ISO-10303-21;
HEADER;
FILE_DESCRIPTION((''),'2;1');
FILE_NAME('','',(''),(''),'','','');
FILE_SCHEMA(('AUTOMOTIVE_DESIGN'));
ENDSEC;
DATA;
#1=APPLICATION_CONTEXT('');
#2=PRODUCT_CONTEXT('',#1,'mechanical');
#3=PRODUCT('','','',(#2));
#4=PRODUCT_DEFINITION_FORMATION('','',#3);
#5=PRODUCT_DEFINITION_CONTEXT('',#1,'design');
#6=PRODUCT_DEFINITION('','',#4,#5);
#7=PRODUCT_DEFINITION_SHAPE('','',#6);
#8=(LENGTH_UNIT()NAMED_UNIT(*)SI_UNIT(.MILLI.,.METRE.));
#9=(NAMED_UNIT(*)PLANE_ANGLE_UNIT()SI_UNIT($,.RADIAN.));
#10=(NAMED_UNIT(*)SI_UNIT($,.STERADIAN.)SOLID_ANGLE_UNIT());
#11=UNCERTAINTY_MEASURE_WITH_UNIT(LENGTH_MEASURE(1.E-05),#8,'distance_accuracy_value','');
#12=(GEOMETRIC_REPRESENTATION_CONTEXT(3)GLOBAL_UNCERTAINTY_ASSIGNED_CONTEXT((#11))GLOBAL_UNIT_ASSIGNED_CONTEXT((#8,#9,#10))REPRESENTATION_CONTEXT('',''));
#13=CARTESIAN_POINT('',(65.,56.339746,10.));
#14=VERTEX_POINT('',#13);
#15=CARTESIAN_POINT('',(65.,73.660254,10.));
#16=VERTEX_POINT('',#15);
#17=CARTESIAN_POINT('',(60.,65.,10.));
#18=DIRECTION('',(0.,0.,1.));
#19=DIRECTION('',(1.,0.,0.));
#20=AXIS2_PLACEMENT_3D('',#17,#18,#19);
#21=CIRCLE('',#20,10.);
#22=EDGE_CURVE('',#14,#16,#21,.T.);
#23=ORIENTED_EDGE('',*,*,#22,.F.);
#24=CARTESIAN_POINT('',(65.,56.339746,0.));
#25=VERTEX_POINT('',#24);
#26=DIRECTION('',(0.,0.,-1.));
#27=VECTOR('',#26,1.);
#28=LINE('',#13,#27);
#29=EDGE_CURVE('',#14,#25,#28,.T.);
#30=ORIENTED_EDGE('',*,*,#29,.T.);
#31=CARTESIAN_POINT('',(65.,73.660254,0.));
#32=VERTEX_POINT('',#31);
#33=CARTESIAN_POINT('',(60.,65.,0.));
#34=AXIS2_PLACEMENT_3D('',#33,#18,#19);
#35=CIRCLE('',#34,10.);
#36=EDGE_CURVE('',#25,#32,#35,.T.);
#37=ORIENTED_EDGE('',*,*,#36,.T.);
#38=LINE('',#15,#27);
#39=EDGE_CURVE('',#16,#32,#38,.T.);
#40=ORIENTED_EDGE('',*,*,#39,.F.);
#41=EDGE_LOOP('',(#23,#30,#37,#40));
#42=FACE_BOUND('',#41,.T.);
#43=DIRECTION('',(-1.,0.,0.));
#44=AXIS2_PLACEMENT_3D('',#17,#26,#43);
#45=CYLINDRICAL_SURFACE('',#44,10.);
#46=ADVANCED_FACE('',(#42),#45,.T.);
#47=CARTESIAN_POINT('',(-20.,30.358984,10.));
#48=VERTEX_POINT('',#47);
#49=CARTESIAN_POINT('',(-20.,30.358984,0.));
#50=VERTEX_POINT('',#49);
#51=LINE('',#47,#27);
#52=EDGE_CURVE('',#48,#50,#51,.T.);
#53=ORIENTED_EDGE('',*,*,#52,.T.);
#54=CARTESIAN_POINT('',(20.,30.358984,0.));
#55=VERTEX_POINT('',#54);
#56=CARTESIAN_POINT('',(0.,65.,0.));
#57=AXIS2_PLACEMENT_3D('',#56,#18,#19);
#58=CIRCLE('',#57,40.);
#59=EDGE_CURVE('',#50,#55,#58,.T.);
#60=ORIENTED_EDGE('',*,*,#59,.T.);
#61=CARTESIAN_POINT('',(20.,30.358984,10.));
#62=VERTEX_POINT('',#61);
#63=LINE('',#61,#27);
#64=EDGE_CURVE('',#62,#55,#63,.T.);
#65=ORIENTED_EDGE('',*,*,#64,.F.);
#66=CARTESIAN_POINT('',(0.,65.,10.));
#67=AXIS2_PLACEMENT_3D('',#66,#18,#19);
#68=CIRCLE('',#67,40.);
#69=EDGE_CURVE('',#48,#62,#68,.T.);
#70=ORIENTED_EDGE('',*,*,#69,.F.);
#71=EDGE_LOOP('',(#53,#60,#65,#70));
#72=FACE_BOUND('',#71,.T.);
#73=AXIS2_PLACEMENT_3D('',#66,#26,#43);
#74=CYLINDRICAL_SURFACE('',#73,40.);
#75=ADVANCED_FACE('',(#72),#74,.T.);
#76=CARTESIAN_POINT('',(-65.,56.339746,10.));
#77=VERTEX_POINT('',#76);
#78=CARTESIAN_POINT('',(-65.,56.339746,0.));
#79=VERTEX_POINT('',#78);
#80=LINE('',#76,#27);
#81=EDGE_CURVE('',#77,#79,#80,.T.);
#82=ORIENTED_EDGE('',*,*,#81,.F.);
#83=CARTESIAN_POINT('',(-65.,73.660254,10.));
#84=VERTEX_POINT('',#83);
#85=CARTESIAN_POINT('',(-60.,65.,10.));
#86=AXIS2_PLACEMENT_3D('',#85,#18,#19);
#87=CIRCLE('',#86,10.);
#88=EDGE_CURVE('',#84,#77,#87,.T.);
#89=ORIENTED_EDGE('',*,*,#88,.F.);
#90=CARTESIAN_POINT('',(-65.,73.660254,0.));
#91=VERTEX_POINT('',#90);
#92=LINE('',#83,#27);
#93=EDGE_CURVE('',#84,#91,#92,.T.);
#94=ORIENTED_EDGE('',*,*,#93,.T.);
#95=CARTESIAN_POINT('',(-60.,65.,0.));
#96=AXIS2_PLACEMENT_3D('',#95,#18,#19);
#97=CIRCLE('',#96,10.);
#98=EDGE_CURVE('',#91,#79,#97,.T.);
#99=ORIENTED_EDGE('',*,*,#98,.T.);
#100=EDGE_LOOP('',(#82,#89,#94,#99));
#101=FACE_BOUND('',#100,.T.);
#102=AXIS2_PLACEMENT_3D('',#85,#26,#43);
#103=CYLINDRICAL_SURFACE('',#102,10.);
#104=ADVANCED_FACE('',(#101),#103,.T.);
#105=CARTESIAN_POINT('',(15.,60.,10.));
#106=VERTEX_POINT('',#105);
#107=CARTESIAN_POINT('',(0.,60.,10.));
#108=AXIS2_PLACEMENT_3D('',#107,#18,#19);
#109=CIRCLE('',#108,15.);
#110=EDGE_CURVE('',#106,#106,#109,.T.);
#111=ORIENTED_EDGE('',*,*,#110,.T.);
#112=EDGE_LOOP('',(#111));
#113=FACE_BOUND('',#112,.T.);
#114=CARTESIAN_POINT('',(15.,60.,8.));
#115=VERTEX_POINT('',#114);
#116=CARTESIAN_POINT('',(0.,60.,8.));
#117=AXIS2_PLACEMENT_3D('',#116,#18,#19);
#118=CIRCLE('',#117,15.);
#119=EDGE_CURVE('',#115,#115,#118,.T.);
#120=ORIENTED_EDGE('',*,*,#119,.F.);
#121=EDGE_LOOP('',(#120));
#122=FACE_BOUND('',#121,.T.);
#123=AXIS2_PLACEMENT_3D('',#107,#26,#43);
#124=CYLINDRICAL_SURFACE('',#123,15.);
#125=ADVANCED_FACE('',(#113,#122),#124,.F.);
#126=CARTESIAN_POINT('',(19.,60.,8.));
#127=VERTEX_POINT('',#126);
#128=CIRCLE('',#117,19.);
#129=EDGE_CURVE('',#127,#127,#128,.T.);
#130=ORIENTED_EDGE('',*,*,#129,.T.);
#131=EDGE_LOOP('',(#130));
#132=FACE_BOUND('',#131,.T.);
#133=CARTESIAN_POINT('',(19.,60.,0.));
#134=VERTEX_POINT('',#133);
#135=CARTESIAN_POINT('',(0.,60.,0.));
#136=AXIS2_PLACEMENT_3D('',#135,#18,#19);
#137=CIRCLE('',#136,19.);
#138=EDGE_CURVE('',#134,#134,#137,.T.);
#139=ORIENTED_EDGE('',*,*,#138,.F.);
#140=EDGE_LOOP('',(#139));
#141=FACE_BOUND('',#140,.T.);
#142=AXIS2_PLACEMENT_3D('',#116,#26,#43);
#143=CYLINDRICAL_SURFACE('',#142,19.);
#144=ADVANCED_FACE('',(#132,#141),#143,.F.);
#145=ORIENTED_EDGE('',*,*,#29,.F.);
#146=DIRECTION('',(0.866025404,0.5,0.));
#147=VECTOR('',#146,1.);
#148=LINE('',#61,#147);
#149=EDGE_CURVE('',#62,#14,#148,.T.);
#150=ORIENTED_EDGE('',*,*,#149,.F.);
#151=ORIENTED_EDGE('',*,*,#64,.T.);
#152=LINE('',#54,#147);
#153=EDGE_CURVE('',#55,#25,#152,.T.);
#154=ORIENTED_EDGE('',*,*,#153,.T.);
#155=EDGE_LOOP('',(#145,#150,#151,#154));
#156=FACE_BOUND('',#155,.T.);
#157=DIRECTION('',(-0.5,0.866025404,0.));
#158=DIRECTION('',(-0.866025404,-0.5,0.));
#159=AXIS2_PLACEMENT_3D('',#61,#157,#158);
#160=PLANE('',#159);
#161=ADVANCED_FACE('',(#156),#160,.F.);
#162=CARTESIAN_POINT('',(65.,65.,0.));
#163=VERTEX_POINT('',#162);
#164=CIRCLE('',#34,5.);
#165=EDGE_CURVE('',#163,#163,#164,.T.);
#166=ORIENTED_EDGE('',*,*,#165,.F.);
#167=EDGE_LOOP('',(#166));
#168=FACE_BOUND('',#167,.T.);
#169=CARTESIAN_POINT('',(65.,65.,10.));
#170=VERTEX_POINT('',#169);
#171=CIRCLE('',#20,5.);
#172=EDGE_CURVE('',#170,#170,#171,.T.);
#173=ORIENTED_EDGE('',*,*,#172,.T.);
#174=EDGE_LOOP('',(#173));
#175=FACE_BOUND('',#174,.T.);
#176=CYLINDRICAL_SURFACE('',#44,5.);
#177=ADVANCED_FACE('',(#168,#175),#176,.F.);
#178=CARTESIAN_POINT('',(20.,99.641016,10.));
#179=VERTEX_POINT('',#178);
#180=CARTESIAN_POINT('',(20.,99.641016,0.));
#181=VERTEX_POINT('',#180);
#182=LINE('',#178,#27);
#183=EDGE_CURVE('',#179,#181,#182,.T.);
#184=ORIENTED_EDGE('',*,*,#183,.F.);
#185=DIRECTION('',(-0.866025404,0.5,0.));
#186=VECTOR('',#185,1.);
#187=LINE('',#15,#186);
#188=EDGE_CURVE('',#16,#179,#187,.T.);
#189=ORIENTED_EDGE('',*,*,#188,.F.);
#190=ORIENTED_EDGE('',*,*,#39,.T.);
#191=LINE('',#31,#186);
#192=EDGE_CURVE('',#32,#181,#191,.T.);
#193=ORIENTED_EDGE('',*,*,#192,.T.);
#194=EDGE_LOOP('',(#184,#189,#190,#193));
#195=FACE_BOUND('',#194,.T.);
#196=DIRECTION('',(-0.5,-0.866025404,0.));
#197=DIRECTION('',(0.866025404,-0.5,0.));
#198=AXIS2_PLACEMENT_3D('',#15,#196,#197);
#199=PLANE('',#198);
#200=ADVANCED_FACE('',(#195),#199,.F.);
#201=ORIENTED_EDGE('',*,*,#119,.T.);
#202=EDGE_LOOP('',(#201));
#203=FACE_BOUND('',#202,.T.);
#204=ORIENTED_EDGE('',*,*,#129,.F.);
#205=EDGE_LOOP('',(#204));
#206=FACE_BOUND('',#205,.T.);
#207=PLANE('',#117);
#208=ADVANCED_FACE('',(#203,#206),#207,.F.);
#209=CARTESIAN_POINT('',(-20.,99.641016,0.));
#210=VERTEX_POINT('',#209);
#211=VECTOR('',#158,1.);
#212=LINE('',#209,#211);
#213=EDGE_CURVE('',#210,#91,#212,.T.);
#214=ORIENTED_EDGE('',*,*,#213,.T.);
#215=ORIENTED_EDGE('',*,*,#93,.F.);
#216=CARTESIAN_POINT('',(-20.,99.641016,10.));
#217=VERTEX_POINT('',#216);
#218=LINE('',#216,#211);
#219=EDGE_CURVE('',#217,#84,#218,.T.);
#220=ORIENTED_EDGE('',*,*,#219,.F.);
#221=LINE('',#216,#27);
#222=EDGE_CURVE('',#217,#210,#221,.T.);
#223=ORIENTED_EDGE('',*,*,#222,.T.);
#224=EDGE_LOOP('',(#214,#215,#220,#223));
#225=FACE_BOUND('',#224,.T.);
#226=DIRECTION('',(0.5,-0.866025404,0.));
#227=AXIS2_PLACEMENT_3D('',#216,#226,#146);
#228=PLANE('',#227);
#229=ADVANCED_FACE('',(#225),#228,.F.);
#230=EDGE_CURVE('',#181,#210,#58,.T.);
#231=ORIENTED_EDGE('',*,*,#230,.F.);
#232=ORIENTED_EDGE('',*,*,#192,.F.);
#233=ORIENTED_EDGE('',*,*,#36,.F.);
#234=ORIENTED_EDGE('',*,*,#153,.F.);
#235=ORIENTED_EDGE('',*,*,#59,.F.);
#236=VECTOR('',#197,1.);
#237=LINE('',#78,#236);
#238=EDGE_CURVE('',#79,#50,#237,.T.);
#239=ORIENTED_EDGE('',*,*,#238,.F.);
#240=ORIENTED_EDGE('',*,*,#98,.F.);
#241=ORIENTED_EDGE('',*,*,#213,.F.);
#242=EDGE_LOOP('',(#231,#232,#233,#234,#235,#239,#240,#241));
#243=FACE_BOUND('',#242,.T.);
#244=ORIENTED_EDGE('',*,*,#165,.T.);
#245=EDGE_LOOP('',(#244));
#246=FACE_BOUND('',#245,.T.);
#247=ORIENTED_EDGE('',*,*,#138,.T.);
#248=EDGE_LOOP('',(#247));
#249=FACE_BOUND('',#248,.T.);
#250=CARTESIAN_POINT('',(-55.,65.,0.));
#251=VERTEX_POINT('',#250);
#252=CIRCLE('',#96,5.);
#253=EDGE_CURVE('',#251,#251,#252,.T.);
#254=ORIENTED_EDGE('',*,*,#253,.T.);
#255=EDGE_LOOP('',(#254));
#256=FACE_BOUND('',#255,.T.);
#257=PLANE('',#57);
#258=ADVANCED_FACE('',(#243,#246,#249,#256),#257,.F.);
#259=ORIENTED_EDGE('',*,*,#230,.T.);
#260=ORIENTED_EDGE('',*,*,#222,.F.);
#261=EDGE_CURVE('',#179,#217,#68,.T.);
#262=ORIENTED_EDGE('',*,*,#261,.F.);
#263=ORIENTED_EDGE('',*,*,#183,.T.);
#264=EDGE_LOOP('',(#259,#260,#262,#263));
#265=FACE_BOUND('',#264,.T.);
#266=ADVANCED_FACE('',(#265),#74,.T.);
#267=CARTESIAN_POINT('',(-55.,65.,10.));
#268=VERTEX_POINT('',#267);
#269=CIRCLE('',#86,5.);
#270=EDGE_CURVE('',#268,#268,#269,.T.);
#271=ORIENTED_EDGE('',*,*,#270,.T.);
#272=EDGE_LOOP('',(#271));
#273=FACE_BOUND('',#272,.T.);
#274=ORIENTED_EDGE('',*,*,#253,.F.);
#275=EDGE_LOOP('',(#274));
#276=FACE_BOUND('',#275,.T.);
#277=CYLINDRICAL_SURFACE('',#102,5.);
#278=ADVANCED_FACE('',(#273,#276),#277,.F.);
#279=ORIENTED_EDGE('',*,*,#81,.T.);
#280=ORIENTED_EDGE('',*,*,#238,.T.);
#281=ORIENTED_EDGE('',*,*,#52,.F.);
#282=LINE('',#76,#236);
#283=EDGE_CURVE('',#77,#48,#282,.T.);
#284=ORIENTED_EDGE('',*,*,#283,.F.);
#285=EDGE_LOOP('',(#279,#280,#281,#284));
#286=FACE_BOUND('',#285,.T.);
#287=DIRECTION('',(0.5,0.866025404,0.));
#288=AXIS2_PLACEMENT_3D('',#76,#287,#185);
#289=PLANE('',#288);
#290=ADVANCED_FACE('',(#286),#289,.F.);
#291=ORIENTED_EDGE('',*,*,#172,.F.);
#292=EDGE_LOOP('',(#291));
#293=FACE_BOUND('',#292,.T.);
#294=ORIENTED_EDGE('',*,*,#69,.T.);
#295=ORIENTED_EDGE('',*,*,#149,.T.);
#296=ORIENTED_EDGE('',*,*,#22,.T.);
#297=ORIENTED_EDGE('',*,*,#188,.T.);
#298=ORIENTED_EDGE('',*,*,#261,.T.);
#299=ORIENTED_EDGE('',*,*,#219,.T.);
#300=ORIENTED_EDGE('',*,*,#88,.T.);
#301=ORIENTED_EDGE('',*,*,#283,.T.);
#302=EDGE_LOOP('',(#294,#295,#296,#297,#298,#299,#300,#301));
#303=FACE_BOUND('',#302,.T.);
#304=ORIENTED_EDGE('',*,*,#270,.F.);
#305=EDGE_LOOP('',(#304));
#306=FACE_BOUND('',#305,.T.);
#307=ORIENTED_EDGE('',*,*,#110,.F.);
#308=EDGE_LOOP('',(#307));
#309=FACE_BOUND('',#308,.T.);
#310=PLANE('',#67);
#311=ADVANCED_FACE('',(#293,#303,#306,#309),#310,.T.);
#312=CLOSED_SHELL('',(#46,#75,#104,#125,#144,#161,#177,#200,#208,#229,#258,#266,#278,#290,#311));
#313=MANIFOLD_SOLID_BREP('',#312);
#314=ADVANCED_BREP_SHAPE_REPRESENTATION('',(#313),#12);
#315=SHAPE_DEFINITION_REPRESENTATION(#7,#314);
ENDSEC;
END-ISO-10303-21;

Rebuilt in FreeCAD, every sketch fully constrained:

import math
import FreeCAD as App
import Part
import Sketcher

V = App.Vector
Q = App.Units.Quantity

doc = App.newDocument("Part")
body = doc.addObject("PartDesign::Body", "Body")

# Sketch on XY plane
sketch1 = body.newObject("Sketcher::SketchObject", "Sketch")
sketch1.AttachmentSupport = (doc.getObject("XY_Plane"), [""])
sketch1.MapMode = "FlatFace"
sketch1.addGeometry([
    Part.LineSegment(V(-20, 99.641016, 0), V(-65, 73.660254, 0)),  # 0
    Part.ArcOfCircle(Part.Circle(V(-60, 65, 0), V(0, 0, 1), 10), math.radians(120), math.radians(240)),  # 1
    Part.LineSegment(V(-65, 56.339746, 0), V(-20, 30.358984, 0)),  # 2
    Part.ArcOfCircle(Part.Circle(V(0, 65, 0), V(0, 0, 1), 40), math.radians(-120), math.radians(-60)),  # 3
    Part.LineSegment(V(20, 30.358984, 0), V(65, 56.339746, 0)),  # 4
    Part.ArcOfCircle(Part.Circle(V(60, 65, 0), V(0, 0, 1), 10), math.radians(-60), math.radians(60)),  # 5
    Part.LineSegment(V(65, 73.660254, 0), V(20, 99.641016, 0)),  # 6
    Part.ArcOfCircle(Part.Circle(V(0, 65, 0), V(0, 0, 1), 40), math.radians(60), math.radians(120)),  # 7
], False)
sketch1.addConstraint([
    Sketcher.Constraint("Tangent", 0, 2, 1, 1),
    Sketcher.Constraint("Tangent", 1, 2, 2, 1),
    Sketcher.Constraint("Tangent", 2, 2, 3, 1),
    Sketcher.Constraint("Tangent", 3, 2, 4, 1),
    Sketcher.Constraint("Tangent", 4, 2, 5, 1),
    Sketcher.Constraint("Tangent", 5, 2, 6, 1),
    Sketcher.Constraint("Tangent", 6, 2, 7, 1),
    Sketcher.Constraint("Tangent", 7, 2, 0, 1),
    Sketcher.Constraint("Coincident", 7, 3, 3, 3),
    Sketcher.Constraint("Equal", 1, 5),
    Sketcher.Constraint("Equal", 3, 7),
    Sketcher.Constraint("Symmetric", 1, 3, 5, 3, -2),
    Sketcher.Constraint("PointOnObject", 3, 3, -2),
    Sketcher.Constraint("Parallel", 0, 4),
    Sketcher.Constraint("Radius", 1, 10.0),
    Sketcher.Constraint("Radius", 3, 40.0),
    Sketcher.Constraint("Angle", 0, Q("-150 deg")),
    Sketcher.Constraint("DistanceY", -1, 1, 1, 3, 65.0),
])
pad1 = body.newObject("PartDesign::Pad", "Pad")
pad1.Profile = sketch1
pad1.Length = 10

# Sketch on XY plane
sketch2 = body.newObject("Sketcher::SketchObject", "Sketch001")
sketch2.AttachmentSupport = (doc.getObject("XY_Plane"), [""])
sketch2.MapMode = "FlatFace"
sketch2.addGeometry([
    Part.Circle(V(0, 60, 0), V(0, 0, 1), 15),
    Part.Circle(V(-60, 65, 0), V(0, 0, 1), 5),
    Part.Circle(V(60, 65, 0), V(0, 0, 1), 5),
], False)
sketch2.addConstraint([
    Sketcher.Constraint("Equal", 1, 2),
    Sketcher.Constraint("Symmetric", 1, 3, 2, 3, -2),
    Sketcher.Constraint("PointOnObject", 0, 3, -2),
    Sketcher.Constraint("Diameter", 0, 30.0),
    Sketcher.Constraint("Diameter", 1, 10.0),
    Sketcher.Constraint("DistanceY", -1, 1, 0, 3, 60.0),
    Sketcher.Constraint("DistanceX", 1, 3, -1, 1, 60.0),
    Sketcher.Constraint("DistanceY", -1, 1, 1, 3, 65.0),
])
pocket1 = body.newObject("PartDesign::Pocket", "Pocket")
pocket1.Profile = sketch2
pocket1.Length = 10
pocket1.Reversed = True

# Sketch on XY plane
sketch3 = body.newObject("Sketcher::SketchObject", "Sketch002")
sketch3.AttachmentSupport = (doc.getObject("XY_Plane"), [""])
sketch3.MapMode = "FlatFace"
sketch3.addGeometry(Part.Circle(V(0, 60, 0), V(0, 0, 1), 19), False)
sketch3.addConstraint([
    Sketcher.Constraint("PointOnObject", 0, 3, -2),
    Sketcher.Constraint("Diameter", 0, 38.0),
    Sketcher.Constraint("DistanceY", -1, 1, 0, 3, 60.0),
])
pocket2 = body.newObject("PartDesign::Pocket", "Pocket001")
pocket2.Profile = sketch3
pocket2.Length = 8
pocket2.Reversed = True

doc.recompute()
